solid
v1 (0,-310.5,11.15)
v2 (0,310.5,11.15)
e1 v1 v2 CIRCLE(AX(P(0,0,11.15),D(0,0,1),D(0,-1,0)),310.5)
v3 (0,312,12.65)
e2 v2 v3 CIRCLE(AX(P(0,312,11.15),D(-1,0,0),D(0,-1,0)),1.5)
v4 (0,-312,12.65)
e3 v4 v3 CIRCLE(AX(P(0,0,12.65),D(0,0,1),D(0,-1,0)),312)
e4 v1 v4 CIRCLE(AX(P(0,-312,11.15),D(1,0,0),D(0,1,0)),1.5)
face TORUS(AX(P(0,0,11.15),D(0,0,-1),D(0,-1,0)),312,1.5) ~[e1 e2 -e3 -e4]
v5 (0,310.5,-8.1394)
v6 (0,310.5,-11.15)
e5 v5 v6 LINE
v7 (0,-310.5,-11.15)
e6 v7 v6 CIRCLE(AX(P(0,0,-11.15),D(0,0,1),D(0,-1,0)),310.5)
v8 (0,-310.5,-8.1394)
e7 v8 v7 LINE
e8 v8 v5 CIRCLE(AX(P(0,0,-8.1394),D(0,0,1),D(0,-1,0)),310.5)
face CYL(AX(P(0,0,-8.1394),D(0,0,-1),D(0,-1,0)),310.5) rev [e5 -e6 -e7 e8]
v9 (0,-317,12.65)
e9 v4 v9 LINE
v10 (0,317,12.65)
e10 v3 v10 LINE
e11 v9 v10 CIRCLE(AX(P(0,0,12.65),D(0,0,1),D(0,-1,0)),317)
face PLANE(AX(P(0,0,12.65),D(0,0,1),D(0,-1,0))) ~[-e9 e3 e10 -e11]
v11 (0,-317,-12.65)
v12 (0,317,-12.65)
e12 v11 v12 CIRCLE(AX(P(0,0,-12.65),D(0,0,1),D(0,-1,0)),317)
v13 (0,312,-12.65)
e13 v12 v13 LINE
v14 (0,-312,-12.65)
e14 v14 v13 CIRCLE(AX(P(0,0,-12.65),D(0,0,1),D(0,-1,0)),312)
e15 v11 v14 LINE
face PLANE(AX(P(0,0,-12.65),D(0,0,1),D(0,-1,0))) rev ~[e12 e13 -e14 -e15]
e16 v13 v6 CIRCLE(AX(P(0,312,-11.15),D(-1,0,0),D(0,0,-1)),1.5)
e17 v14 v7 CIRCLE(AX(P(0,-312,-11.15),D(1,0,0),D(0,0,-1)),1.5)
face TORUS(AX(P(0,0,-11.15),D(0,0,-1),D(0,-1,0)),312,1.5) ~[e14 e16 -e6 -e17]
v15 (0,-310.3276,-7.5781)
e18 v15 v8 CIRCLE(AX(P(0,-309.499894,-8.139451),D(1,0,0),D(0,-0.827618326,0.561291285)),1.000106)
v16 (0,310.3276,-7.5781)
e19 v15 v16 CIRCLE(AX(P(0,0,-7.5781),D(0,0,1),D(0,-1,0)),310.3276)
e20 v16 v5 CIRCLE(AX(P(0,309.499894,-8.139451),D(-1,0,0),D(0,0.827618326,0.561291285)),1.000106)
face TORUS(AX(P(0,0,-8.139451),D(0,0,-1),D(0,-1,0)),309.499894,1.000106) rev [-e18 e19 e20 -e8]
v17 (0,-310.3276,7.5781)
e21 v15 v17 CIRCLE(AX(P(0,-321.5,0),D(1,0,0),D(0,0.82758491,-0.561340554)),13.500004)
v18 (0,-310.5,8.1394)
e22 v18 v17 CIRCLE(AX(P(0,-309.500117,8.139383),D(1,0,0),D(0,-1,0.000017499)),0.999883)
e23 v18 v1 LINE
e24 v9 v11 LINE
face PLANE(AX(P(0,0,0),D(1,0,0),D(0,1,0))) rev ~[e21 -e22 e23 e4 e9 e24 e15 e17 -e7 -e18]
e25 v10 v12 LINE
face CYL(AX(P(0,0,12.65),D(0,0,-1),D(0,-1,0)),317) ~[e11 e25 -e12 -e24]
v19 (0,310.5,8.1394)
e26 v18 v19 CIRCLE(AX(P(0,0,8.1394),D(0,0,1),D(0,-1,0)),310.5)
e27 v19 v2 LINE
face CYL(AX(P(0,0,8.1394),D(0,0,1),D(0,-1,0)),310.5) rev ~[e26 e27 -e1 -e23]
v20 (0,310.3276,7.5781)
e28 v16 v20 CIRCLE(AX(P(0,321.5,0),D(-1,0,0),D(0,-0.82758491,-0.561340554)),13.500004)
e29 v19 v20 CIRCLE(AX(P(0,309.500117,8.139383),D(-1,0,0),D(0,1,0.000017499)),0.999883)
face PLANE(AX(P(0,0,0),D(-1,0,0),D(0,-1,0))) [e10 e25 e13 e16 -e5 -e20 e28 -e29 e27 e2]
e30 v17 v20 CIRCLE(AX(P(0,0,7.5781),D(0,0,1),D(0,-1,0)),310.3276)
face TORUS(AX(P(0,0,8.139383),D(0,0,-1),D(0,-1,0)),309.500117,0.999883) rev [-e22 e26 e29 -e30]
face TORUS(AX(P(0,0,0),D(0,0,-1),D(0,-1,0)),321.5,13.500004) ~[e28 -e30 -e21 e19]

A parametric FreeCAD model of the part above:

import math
import FreeCAD as App
import Part
import Sketcher

V = App.Vector
Q = App.Units.Quantity

doc = App.newDocument("Part")
params = doc.addObject("Spreadsheet::Sheet", "Params")
for row, (alias, value) in enumerate([
    ("sketch1_radius", "1 mm"),
    ("sketch1_radius2", "1.5 mm"),
    ("sketch1_radius3", "13.5 mm"),
    ("sketch1_height", "25.3 mm"),
    ("sketch1_width", "5 mm"),
    ("revolution_angle", "180 deg"),
], start=1):
    params.set(f"A{row}", alias)
    params.set(f"B{row}", "=" + value)
    params.setAlias(f"B{row}", alias)

body = doc.addObject("PartDesign::Body", "Body")

# Sketch on YZ plane
sketch1 = body.newObject("Sketcher::SketchObject", "Sketch")
sketch1.AttachmentSupport = (doc.getObject("YZ_Plane"), [""])
sketch1.MapMode = "FlatFace"
sketch1.addGeometry([
    Part.ArcOfCircle(Part.Circle(V(-312, 11.2, 0), V(0, 0, 1), 1.5), math.radians(0), math.radians(90)),  # 0
    Part.LineSegment(V(-312, 12.7, 0), V(-317, 12.7, 0)),  # 1
    Part.LineSegment(V(-317, 12.7, 0), V(-317, -12.7, 0)),  # 2
    Part.LineSegment(V(-317, -12.7, 0), V(-312, -12.7, 0)),  # 3
    Part.ArcOfCircle(Part.Circle(V(-312, -11.2, 0), V(0, 0, 1), 1.5), math.radians(-90), math.radians(0)),  # 4
    Part.LineSegment(V(-310.5, -11.2, 0), V(-310.5, -8.1, 0)),  # 5
    Part.ArcOfCircle(Part.Circle(V(-309.5, -8.1, 0), V(0, 0, 1), 1), math.radians(146), math.radians(180)),  # 6
    Part.ArcOfCircle(Part.Circle(V(-321.5, 0, 0), V(0, 0, 1), 13.5), math.radians(-34), math.radians(34)),  # 7
    Part.ArcOfCircle(Part.Circle(V(-309.5, 8.1, 0), V(0, 0, 1), 1), math.radians(180), math.radians(214)),  # 8
    Part.LineSegment(V(-310.5, 8.1, 0), V(-310.5, 11.2, 0)),  # 9
], False)
sketch1.addConstraint([
    Sketcher.Constraint("Tangent", 0, 2, 1, 1),
    Sketcher.Constraint("Coincident", 1, 2, 2, 1),
    Sketcher.Constraint("Coincident", 2, 2, 3, 1),
    Sketcher.Constraint("Tangent", 3, 2, 4, 1),
    Sketcher.Constraint("Tangent", 4, 2, 5, 1),
    Sketcher.Constraint("Tangent", 5, 2, 6, 2),
    Sketcher.Constraint("Tangent", 6, 1, 7, 1),
    Sketcher.Constraint("Tangent", 7, 2, 8, 2),
    Sketcher.Constraint("Tangent", 8, 1, 9, 1),
    Sketcher.Constraint("Tangent", 9, 2, 0, 1),
    Sketcher.Constraint("Horizontal", 1),
    Sketcher.Constraint("Vertical", 2),
    Sketcher.Constraint("Horizontal", 3),
    Sketcher.Constraint("Vertical", 5),
    Sketcher.Constraint("Vertical", 9),
    Sketcher.Constraint("Equal", 0, 4),
    Sketcher.Constraint("Equal", 6, 8),
    Sketcher.Constraint("Symmetric", 0, 3, 4, 3, -1),
    Sketcher.Constraint("PointOnObject", 7, 3, -1),
    Sketcher.Constraint("Radius", 6, Q("1 mm")),
    Sketcher.Constraint("Radius", 0, Q("1.5 mm")),
    Sketcher.Constraint("Radius", 7, Q("13.5 mm")),
    Sketcher.Constraint("DistanceY", 2, 2, 2, 1, Q("25.3 mm")),
    Sketcher.Constraint("DistanceX", 1, 2, -1, 1, Q("317 mm")),
    Sketcher.Constraint("DistanceX", 1, 2, 1, 1, Q("5 mm")),
    Sketcher.Constraint("DistanceX", 7, 3, 6, 3, Q("12 mm")),
])
sketch1.setExpression("Constraints[19]", "Params.sketch1_radius")
sketch1.setExpression("Constraints[20]", "Params.sketch1_radius2")
sketch1.setExpression("Constraints[21]", "Params.sketch1_radius3")
sketch1.setExpression("Constraints[22]", "Params.sketch1_height")
sketch1.setExpression("Constraints[24]", "Params.sketch1_width")
revolution = body.newObject("PartDesign::Revolution", "Revolution")
revolution.Profile = sketch1
revolution.ReferenceAxis = (sketch1, ["V_Axis"])
revolution.setExpression("Angle", "Params.revolution_angle")

doc.recompute()
